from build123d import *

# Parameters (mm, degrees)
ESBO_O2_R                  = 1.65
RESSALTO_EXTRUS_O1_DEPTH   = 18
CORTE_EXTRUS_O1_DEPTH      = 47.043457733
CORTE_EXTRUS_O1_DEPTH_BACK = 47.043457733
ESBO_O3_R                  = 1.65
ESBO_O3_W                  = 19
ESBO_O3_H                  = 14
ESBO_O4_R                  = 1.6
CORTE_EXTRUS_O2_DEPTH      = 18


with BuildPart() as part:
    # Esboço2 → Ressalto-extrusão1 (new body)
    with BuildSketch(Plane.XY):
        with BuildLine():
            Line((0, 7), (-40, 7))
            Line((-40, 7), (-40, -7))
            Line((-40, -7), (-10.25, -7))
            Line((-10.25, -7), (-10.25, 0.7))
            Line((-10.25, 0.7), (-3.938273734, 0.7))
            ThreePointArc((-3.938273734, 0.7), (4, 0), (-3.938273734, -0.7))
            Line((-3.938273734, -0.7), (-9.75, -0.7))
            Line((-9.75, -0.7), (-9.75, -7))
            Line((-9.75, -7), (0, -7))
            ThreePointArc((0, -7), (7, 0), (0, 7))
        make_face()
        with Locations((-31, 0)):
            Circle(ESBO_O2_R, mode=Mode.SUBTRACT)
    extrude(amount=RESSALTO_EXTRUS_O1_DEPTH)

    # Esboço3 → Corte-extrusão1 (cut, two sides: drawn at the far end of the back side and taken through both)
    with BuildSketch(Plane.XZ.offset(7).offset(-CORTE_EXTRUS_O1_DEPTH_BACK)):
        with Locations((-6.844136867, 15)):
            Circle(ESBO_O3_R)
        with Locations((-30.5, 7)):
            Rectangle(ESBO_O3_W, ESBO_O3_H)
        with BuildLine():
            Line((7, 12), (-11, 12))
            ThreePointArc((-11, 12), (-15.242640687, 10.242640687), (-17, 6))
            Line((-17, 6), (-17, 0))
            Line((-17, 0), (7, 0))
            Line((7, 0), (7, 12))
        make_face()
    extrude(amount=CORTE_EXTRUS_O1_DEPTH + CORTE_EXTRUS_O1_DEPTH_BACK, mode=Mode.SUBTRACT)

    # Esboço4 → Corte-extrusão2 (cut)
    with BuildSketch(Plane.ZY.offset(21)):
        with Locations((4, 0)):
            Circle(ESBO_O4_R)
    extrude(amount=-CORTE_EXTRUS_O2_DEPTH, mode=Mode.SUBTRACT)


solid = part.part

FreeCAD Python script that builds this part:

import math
import FreeCAD as App
import Part
import Sketcher

doc = App.newDocument("Part")
params = doc.addObject("Spreadsheet::Sheet", "Params")
for row, (alias, value) in enumerate([
    ("sketch1_radius", "4 mm"),
    ("sketch1_radius2", "7 mm"),
    ("sketch1_diameter", "3.3 mm"),
    ("sketch1_width", "40 mm"),
    ("sketch1_height", "7.7 mm"),
    ("pad1_length", "18 mm"),
    ("sketch2_radius", "6 mm"),
    ("sketch2_diameter", "3.3 mm"),
    ("sketch2_width", "19 mm"),
    ("sketch2_width2", "18 mm"),
    ("sketch2_height", "14 mm"),
    ("sketch3_diameter", "3.2 mm"),
    ("pocket2_length", "18 mm"),
], start=1):
    params.set(f"A{row}", alias)
    params.set(f"B{row}", "=" + value)
    params.setAlias(f"B{row}", alias)

body = doc.addObject("PartDesign::Body", "Body")

# Sketch on XY plane
sketch1 = body.newObject("Sketcher::SketchObject", "Sketch")
sketch1.AttachmentSupport = (doc.getObject("XY_Plane"), [""])
sketch1.MapMode = "FlatFace"
sketch1.addGeometry(Part.LineSegment(App.Vector(0, 7, 0), App.Vector(-40, 7, 0)), False)
sketch1.addGeometry(Part.LineSegment(App.Vector(-40, 7, 0), App.Vector(-40, -7, 0)), False)
sketch1.addGeometry(Part.LineSegment(App.Vector(-40, -7, 0), App.Vector(-10.25, -7, 0)), False)
sketch1.addGeometry(Part.LineSegment(App.Vector(-10.25, -7, 0), App.Vector(-10.25, 0.7, 0)), False)
sketch1.addGeometry(Part.LineSegment(App.Vector(-10.25, 0.7, 0), App.Vector(-3.938274, 0.7, 0)), False)
sketch1.addGeometry(Part.ArcOfCircle(Part.Circle(App.Vector(0, 0, 0), App.Vector(0, 0, 1), 4), math.radians(-169.921342), math.radians(169.921342)), False)
sketch1.addGeometry(Part.LineSegment(App.Vector(-3.938274, -0.7, 0), App.Vector(-9.75, -0.7, 0)), False)
sketch1.addGeometry(Part.LineSegment(App.Vector(-9.75, -0.7, 0), App.Vector(-9.75, -7, 0)), False)
sketch1.addGeometry(Part.LineSegment(App.Vector(-9.75, -7, 0), App.Vector(0, -7, 0)), False)
sketch1.addGeometry(Part.ArcOfCircle(Part.Circle(App.Vector(0, 0, 0), App.Vector(0, 0, 1), 7), math.radians(-90), math.radians(90)), False)
sketch1.addGeometry(Part.Circle(App.Vector(-31, 0, 0), App.Vector(0, 0, 1), 1.65), False)
sketch1.addConstraint(Sketcher.Constraint("Coincident", 0, 2, 1, 1))
sketch1.addConstraint(Sketcher.Constraint("Coincident", 1, 2, 2, 1))
sketch1.addConstraint(Sketcher.Constraint("Coincident", 2, 2, 3, 1))
sketch1.addConstraint(Sketcher.Constraint("Coincident", 3, 2, 4, 1))
sketch1.addConstraint(Sketcher.Constraint("Coincident", 4, 2, 5, 2))
sketch1.addConstraint(Sketcher.Constraint("Coincident", 5, 1, 6, 1))
sketch1.addConstraint(Sketcher.Constraint("Coincident", 6, 2, 7, 1))
sketch1.addConstraint(Sketcher.Constraint("Coincident", 7, 2, 8, 1))
sketch1.addConstraint(Sketcher.Constraint("Tangent", 8, 2, 9, 1))
sketch1.addConstraint(Sketcher.Constraint("Tangent", 9, 2, 0, 1))
sketch1.addConstraint(Sketcher.Constraint("Horizontal", 0))
sketch1.addConstraint(Sketcher.Constraint("Vertical", 1))
sketch1.addConstraint(Sketcher.Constraint("Horizontal", 2))
sketch1.addConstraint(Sketcher.Constraint("Vertical", 3))
sketch1.addConstraint(Sketcher.Constraint("Horizontal", 4))
sketch1.addConstraint(Sketcher.Constraint("Horizontal", 6))
sketch1.addConstraint(Sketcher.Constraint("Vertical", 7))
sketch1.addConstraint(Sketcher.Constraint("Horizontal", 8))
sketch1.addConstraint(Sketcher.Constraint("Coincident", 5, 3, -1, 1))
sketch1.addConstraint(Sketcher.Constraint("Coincident", 9, 3, -1, 1))
sketch1.addConstraint(Sketcher.Constraint("PointOnObject", 10, 3, -1))
sketch1.addConstraint(Sketcher.Constraint("Horizontal", 2, 2, 7, 2))
sketch1.addConstraint(Sketcher.Constraint("Vertical", 4, 2, 5, 1))
sketch1.addConstraint(Sketcher.Constraint("Radius", 5, 4.0))
sketch1.addConstraint(Sketcher.Constraint("Radius", 9, 7.0))
sketch1.addConstraint(Sketcher.Constraint("Diameter", 10, 3.3))
sketch1.addConstraint(Sketcher.Constraint("DistanceX", 0, 2, 0, 1, 40.0))
sketch1.addConstraint(Sketcher.Constraint("DistanceY", 3, 1, 3, 2, 7.7))
sketch1.addConstraint(Sketcher.Constraint("DistanceX", 10, 3, -1, 1, 31.0))
sketch1.addConstraint(Sketcher.Constraint("DistanceX", 2, 1, 2, 2, 29.75))
sketch1.addConstraint(Sketcher.Constraint("DistanceX", 8, 1, 8, 2, 9.75))
sketch1.setExpression("Constraints[23]", "Params.sketch1_radius")
sketch1.setExpression("Constraints[24]", "Params.sketch1_radius2")
sketch1.setExpression("Constraints[25]", "Params.sketch1_diameter")
sketch1.setExpression("Constraints[26]", "Params.sketch1_width")
sketch1.setExpression("Constraints[27]", "Params.sketch1_height")
pad1 = body.newObject("PartDesign::Pad", "Pad")
pad1.Profile = sketch1
pad1.setExpression("Length", "Params.pad1_length")

# Sketch on XZ plane
sketch2 = body.newObject("Sketcher::SketchObject", "Sketch001")
sketch2.AttachmentSupport = (doc.getObject("XZ_Plane"), [""])
sketch2.MapMode = "FlatFace"
sketch2.AttachmentOffset = App.Placement(App.Vector(0, 0, 7), App.Rotation())
sketch2.addGeometry(Part.Circle(App.Vector(-6.844137, 15, 0), App.Vector(0, 0, 1), 1.65), False)
sketch2.addGeometry(Part.LineSegment(App.Vector(-40, 14, 0), App.Vector(-40, 0, 0)), False)
sketch2.addGeometry(Part.LineSegment(App.Vector(-40, 0, 0), App.Vector(-21, 0, 0)), False)
sketch2.addGeometry(Part.LineSegment(App.Vector(-21, 0, 0), App.Vector(-21, 14, 0)), False)
sketch2.addGeometry(Part.LineSegment(App.Vector(-21, 14, 0), App.Vector(-40, 14, 0)), False)
sketch2.addGeometry(Part.LineSegment(App.Vector(7, 12, 0), App.Vector(-11, 12, 0)), False)
sketch2.addGeometry(Part.ArcOfCircle(Part.Circle(App.Vector(-11, 6, 0), App.Vector(0, 0, 1), 6), math.radians(90), math.radians(180)), False)
sketch2.addGeometry(Part.LineSegment(App.Vector(-17, 6, 0), App.Vector(-17, 0, 0)), False)
sketch2.addGeometry(Part.LineSegment(App.Vector(-17, 0, 0), App.Vector(7, 0, 0)), False)
sketch2.addGeometry(Part.LineSegment(App.Vector(7, 0, 0), App.Vector(7, 12, 0)), False)
sketch2.addConstraint(Sketcher.Constraint("Coincident", 1, 2, 2, 1))
sketch2.addConstraint(Sketcher.Constraint("Coincident", 2, 2, 3, 1))
sketch2.addConstraint(Sketcher.Constraint("Coincident", 3, 2, 4, 1))
sketch2.addConstraint(Sketcher.Constraint("Coincident", 4, 2, 1, 1))
sketch2.addConstraint(Sketcher.Constraint("Tangent", 5, 2, 6, 1))
sketch2.addConstraint(Sketcher.Constraint("Tangent", 6, 2, 7, 1))
sketch2.addConstraint(Sketcher.Constraint("Coincident", 7, 2, 8, 1))
sketch2.addConstraint(Sketcher.Constraint("Coincident", 8, 2, 9, 1))
sketch2.addConstraint(Sketcher.Constraint("Coincident", 9, 2, 5, 1))
sketch2.addConstraint(Sketcher.Constraint("Vertical", 1))
sketch2.addConstraint(Sketcher.Constraint("Horizontal", 2))
sketch2.addConstraint(Sketcher.Constraint("Vertical", 3))
sketch2.addConstraint(Sketcher.Constraint("Horizontal", 4))
sketch2.addConstraint(Sketcher.Constraint("Horizontal", 5))
sketch2.addConstraint(Sketcher.Constraint("Vertical", 7))
sketch2.addConstraint(Sketcher.Constraint("Horizontal", 8))
sketch2.addConstraint(Sketcher.Constraint("Vertical", 9))
sketch2.addConstraint(Sketcher.Constraint("PointOnObject", 1, 2, -1))
sketch2.addConstraint(Sketcher.Constraint("PointOnObject", 7, 2, -1))
sketch2.addConstraint(Sketcher.Constraint("Radius", 6, 6.0))
sketch2.addConstraint(Sketcher.Constraint("Diameter", 0, 3.3))
sketch2.addConstraint(Sketcher.Constraint("DistanceX", 2, 1, 2, 2, 19.0))
sketch2.addConstraint(Sketcher.Constraint("DistanceX", 5, 2, 5, 1, 18.0))
sketch2.addConstraint(Sketcher.Constraint("DistanceY", 1, 2, 1, 1, 14.0))
sketch2.addConstraint(Sketcher.Constraint("DistanceY", 7, 2, 7, 1, 6.0))
sketch2.addConstraint(Sketcher.Constraint("DistanceY", -1, 1, 0, 3, 15.0))
sketch2.addConstraint(Sketcher.Constraint("DistanceX", 6, 3, -1, 1, 11.0))
sketch2.addConstraint(Sketcher.Constraint("DistanceX", 1, 2, -1, 1, 40.0))
sketch2.addConstraint(Sketcher.Constraint("DistanceX", 0, 3, -1, 1, 6.844137))
sketch2.setExpression("Constraints[19]", "Params.sketch2_radius")
sketch2.setExpression("Constraints[20]", "Params.sketch2_diameter")
sketch2.setExpression("Constraints[21]", "Params.sketch2_width")
sketch2.setExpression("Constraints[22]", "Params.sketch2_width2")
sketch2.setExpression("Constraints[23]", "Params.sketch2_height")
pocket1 = body.newObject("PartDesign::Pocket", "Pocket")
pocket1.Profile = sketch2
pocket1.Type = "ThroughAll"
pocket1.Midplane = True

# Sketch on YZ plane
sketch3 = body.newObject("Sketcher::SketchObject", "Sketch002")
sketch3.AttachmentSupport = (doc.getObject("YZ_Plane"), [""])
sketch3.MapMode = "FlatFace"
sketch3.AttachmentOffset = App.Placement(App.Vector(0, 0, -21), App.Rotation())
sketch3.addGeometry(Part.Circle(App.Vector(0, 4, 0), App.Vector(0, 0, 1), 1.6), False)
sketch3.addConstraint(Sketcher.Constraint("PointOnObject", 0, 3, -2))
sketch3.addConstraint(Sketcher.Constraint("Diameter", 0, 3.2))
sketch3.addConstraint(Sketcher.Constraint("DistanceY", -1, 1, 0, 3, 4.0))
sketch3.setExpression("Constraints[1]", "Params.sketch3_diameter")
pocket2 = body.newObject("PartDesign::Pocket", "Pocket001")
pocket2.Profile = sketch3
pocket2.setExpression("Length", "Params.pocket2_length")
pocket2.Reversed = True

doc.recompute()
